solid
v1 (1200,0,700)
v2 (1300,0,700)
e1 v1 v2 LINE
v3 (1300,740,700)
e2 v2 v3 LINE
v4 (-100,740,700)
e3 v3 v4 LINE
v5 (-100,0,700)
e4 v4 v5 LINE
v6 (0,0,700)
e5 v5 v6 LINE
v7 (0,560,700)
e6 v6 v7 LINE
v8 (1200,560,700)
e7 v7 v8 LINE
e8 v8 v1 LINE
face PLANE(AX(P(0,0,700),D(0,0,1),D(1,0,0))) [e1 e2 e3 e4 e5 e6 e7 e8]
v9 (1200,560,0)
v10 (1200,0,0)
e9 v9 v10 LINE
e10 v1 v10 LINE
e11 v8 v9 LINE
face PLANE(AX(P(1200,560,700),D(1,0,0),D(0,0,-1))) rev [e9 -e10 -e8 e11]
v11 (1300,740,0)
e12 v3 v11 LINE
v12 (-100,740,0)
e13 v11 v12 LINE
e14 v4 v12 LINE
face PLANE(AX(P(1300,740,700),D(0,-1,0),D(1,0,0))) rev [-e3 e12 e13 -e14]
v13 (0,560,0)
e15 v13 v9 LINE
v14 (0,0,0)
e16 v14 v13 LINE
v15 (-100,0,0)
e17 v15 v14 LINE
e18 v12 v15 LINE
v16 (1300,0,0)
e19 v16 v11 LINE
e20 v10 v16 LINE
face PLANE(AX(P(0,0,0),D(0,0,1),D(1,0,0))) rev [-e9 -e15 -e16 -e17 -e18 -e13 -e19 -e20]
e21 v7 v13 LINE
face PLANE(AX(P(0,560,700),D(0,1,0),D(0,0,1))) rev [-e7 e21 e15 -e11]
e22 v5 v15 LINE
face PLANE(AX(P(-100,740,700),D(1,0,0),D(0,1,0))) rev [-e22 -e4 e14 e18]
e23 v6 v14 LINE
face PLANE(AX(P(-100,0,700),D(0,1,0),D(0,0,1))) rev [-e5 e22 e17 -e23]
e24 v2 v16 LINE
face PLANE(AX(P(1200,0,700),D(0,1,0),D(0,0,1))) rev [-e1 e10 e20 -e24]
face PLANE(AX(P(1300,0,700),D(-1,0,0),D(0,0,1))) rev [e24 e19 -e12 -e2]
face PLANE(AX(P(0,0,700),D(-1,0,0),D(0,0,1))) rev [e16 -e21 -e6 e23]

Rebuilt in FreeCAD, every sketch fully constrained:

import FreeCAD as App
import Part
import Sketcher
from FreeCAD import Vector

doc = App.newDocument("Part")
body = doc.addObject("PartDesign::Body", "Body")

# Sketch on XY plane
sketch1 = body.newObject("Sketcher::SketchObject", "Sketch")
sketch1.AttachmentSupport = (doc.getObject("XY_Plane"), [""])
sketch1.MapMode = "FlatFace"
sketch1.addGeometry(Part.LineSegment(Vector(-100, 0, 0), Vector(0, 0, 0)), False)
sketch1.addGeometry(Part.LineSegment(Vector(0, 0, 0), Vector(0, 560, 0)), False)
sketch1.addGeometry(Part.LineSegment(Vector(0, 560, 0), Vector(1200, 560, 0)), False)
sketch1.addGeometry(Part.LineSegment(Vector(1200, 560, 0), Vector(1200, 0, 0)), False)
sketch1.addGeometry(Part.LineSegment(Vector(1200, 0, 0), Vector(1300, 0, 0)), False)
sketch1.addGeometry(Part.LineSegment(Vector(1300, 0, 0), Vector(1300, 740, 0)), False)
sketch1.addGeometry(Part.LineSegment(Vector(1300, 740, 0), Vector(-100, 740, 0)), False)
sketch1.addGeometry(Part.LineSegment(Vector(-100, 740, 0), Vector(-100, 0, 0)), False)
sketch1.addConstraint(Sketcher.Constraint("Coincident", 0, 2, 1, 1))
sketch1.addConstraint(Sketcher.Constraint("Coincident", 1, 2, 2, 1))
sketch1.addConstraint(Sketcher.Constraint("Coincident", 2, 2, 3, 1))
sketch1.addConstraint(Sketcher.Constraint("Coincident", 3, 2, 4, 1))
sketch1.addConstraint(Sketcher.Constraint("Coincident", 4, 2, 5, 1))
sketch1.addConstraint(Sketcher.Constraint("Coincident", 5, 2, 6, 1))
sketch1.addConstraint(Sketcher.Constraint("Coincident", 6, 2, 7, 1))
sketch1.addConstraint(Sketcher.Constraint("Coincident", 7, 2, 0, 1))
sketch1.addConstraint(Sketcher.Constraint("Horizontal", 0))
sketch1.addConstraint(Sketcher.Constraint("Vertical", 1))
sketch1.addConstraint(Sketcher.Constraint("Horizontal", 2))
sketch1.addConstraint(Sketcher.Constraint("Vertical", 3))
sketch1.addConstraint(Sketcher.Constraint("Horizontal", 4))
sketch1.addConstraint(Sketcher.Constraint("Vertical", 5))
sketch1.addConstraint(Sketcher.Constraint("Horizontal", 6))
sketch1.addConstraint(Sketcher.Constraint("Vertical", 7))
sketch1.addConstraint(Sketcher.Constraint("Coincident", 0, 2, -1, 1))
sketch1.addConstraint(Sketcher.Constraint("PointOnObject", 3, 2, -1))
sketch1.addConstraint(Sketcher.Constraint("Equal", 0, 4))
sketch1.addConstraint(Sketcher.Constraint("DistanceX", 0, 1, 0, 2, 100.0))
sketch1.addConstraint(Sketcher.Constraint("DistanceX", 2, 1, 2, 2, 1200.0))
sketch1.addConstraint(Sketcher.Constraint("DistanceY", 1, 1, 1, 2, 560.0))
sketch1.addConstraint(Sketcher.Constraint("DistanceY", 5, 1, 5, 2, 740.0))
pad1 = body.newObject("PartDesign::Pad", "Pad")
pad1.Profile = sketch1
pad1.Length = 700

doc.recompute()
